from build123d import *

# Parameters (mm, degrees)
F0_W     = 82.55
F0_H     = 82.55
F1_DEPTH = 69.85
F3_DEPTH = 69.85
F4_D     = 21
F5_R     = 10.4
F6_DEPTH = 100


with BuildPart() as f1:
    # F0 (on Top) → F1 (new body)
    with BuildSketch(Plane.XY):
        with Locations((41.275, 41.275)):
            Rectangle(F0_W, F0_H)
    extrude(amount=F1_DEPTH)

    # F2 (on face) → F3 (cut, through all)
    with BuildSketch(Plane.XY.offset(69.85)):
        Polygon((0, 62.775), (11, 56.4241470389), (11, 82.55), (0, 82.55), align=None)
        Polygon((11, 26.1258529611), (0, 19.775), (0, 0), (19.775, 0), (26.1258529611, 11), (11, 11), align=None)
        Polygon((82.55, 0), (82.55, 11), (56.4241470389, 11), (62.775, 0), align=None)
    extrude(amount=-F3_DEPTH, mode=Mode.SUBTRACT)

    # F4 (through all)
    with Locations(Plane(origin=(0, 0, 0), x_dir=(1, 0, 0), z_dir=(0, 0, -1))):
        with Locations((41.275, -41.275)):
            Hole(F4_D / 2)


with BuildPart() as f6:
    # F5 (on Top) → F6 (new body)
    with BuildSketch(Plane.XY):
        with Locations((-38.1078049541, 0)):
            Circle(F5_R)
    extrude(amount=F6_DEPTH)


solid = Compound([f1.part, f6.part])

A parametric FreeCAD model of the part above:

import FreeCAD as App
import Part
import Sketcher
Q = App.Units.Quantity

doc = App.newDocument("Part")
body = doc.addObject("PartDesign::Body", "Body")

# Sketch on XY plane
sketch1 = body.newObject("Sketcher::SketchObject", "Sketch")
sketch1.AttachmentSupport = (doc.getObject("XY_Plane"), [""])
sketch1.MapMode = "FlatFace"
sketch1.addGeometry(Part.LineSegment(App.Vector(0, 83, 0), App.Vector(0, 0, 0)), False)
sketch1.addGeometry(Part.LineSegment(App.Vector(0, 0, 0), App.Vector(83, 0, 0)), False)
sketch1.addGeometry(Part.LineSegment(App.Vector(83, 0, 0), App.Vector(83, 83, 0)), False)
sketch1.addGeometry(Part.LineSegment(App.Vector(83, 83, 0), App.Vector(0, 83, 0)), False)
sketch1.addConstraint(Sketcher.Constraint("Coincident", 0, 2, 1, 1))
sketch1.addConstraint(Sketcher.Constraint("Coincident", 1, 2, 2, 1))
sketch1.addConstraint(Sketcher.Constraint("Coincident", 2, 2, 3, 1))
sketch1.addConstraint(Sketcher.Constraint("Coincident", 3, 2, 0, 1))
sketch1.addConstraint(Sketcher.Constraint("Vertical", 0))
sketch1.addConstraint(Sketcher.Constraint("Horizontal", 1))
sketch1.addConstraint(Sketcher.Constraint("Vertical", 2))
sketch1.addConstraint(Sketcher.Constraint("Horizontal", 3))
sketch1.addConstraint(Sketcher.Constraint("Coincident", 0, 2, -1, 1))
sketch1.addConstraint(Sketcher.Constraint("Equal", 3, 0))
sketch1.addConstraint(Sketcher.Constraint("DistanceX", 1, 1, 1, 2, 82.55))
pad1 = body.newObject("PartDesign::Pad", "Pad")
pad1.Profile = sketch1
pad1.Length = 69.85

# Sketch on XY plane
sketch2 = body.newObject("Sketcher::SketchObject", "Sketch001")
sketch2.AttachmentSupport = (doc.getObject("XY_Plane"), [""])
sketch2.MapMode = "FlatFace"
sketch2.AttachmentOffset = App.Placement(App.Vector(0, 0, 69.85), App.Rotation())
sketch2.addGeometry(Part.LineSegment(App.Vector(0, 63, 0), App.Vector(11, 56, 0)), False)
sketch2.addGeometry(Part.LineSegment(App.Vector(11, 56, 0), App.Vector(11, 83, 0)), False)
sketch2.addGeometry(Part.LineSegment(App.Vector(11, 83, 0), App.Vector(0, 83, 0)), False)
sketch2.addGeometry(Part.LineSegment(App.Vector(0, 83, 0), App.Vector(0, 63, 0)), False)
sketch2.addGeometry(Part.LineSegment(App.Vector(11, 26, 0), App.Vector(0, 20, 0)), False)
sketch2.addGeometry(Part.LineSegment(App.Vector(0, 20, 0), App.Vector(0, 0, 0)), False)
sketch2.addGeometry(Part.LineSegment(App.Vector(0, 0, 0), App.Vector(20, 0, 0)), False)
sketch2.addGeometry(Part.LineSegment(App.Vector(20, 0, 0), App.Vector(26, 11, 0)), False)
sketch2.addGeometry(Part.LineSegment(App.Vector(26, 11, 0), App.Vector(11, 11, 0)), False)
sketch2.addGeometry(Part.LineSegment(App.Vector(11, 11, 0), App.Vector(11, 26, 0)), False)
sketch2.addGeometry(Part.LineSegment(App.Vector(83, 0, 0), App.Vector(83, 11, 0)), False)
sketch2.addGeometry(Part.LineSegment(App.Vector(83, 11, 0), App.Vector(56, 11, 0)), False)
sketch2.addGeometry(Part.LineSegment(App.Vector(56, 11, 0), App.Vector(63, 0, 0)), False)
sketch2.addGeometry(Part.LineSegment(App.Vector(63, 0, 0), App.Vector(83, 0, 0)), False)
sketch2.addConstraint(Sketcher.Constraint("Coincident", 0, 2, 1, 1))
sketch2.addConstraint(Sketcher.Constraint("Coincident", 1, 2, 2, 1))
sketch2.addConstraint(Sketcher.Constraint("Coincident", 2, 2, 3, 1))
sketch2.addConstraint(Sketcher.Constraint("Coincident", 3, 2, 0, 1))
sketch2.addConstraint(Sketcher.Constraint("Coincident", 4, 2, 5, 1))
sketch2.addConstraint(Sketcher.Constraint("Coincident", 5, 2, 6, 1))
sketch2.addConstraint(Sketcher.Constraint("Coincident", 6, 2, 7, 1))
sketch2.addConstraint(Sketcher.Constraint("Coincident", 7, 2, 8, 1))
sketch2.addConstraint(Sketcher.Constraint("Coincident", 8, 2, 9, 1))
sketch2.addConstraint(Sketcher.Constraint("Coincident", 9, 2, 4, 1))
sketch2.addConstraint(Sketcher.Constraint("Coincident", 10, 2, 11, 1))
sketch2.addConstraint(Sketcher.Constraint("Coincident", 11, 2, 12, 1))
sketch2.addConstraint(Sketcher.Constraint("Coincident", 12, 2, 13, 1))
sketch2.addConstraint(Sketcher.Constraint("Coincident", 13, 2, 10, 1))
sketch2.addConstraint(Sketcher.Constraint("Vertical", 1))
sketch2.addConstraint(Sketcher.Constraint("Horizontal", 2))
sketch2.addConstraint(Sketcher.Constraint("Vertical", 3))
sketch2.addConstraint(Sketcher.Constraint("Vertical", 5))
sketch2.addConstraint(Sketcher.Constraint("Horizontal", 6))
sketch2.addConstraint(Sketcher.Constraint("Horizontal", 8))
sketch2.addConstraint(Sketcher.Constraint("Vertical", 9))
sketch2.addConstraint(Sketcher.Constraint("Vertical", 10))
sketch2.addConstraint(Sketcher.Constraint("Horizontal", 11))
sketch2.addConstraint(Sketcher.Constraint("Horizontal", 13))
sketch2.addConstraint(Sketcher.Constraint("Coincident", 5, 2, -1, 1))
sketch2.addConstraint(Sketcher.Constraint("PointOnObject", 2, 2, -2))
sketch2.addConstraint(Sketcher.Constraint("PointOnObject", 12, 2, -1))
sketch2.addConstraint(Sketcher.Constraint("Perpendicular", 0, 7))
sketch2.addConstraint(Sketcher.Constraint("Perpendicular", 4, 12))
sketch2.addConstraint(Sketcher.Constraint("Horizontal", 8, 2, 10, 2))
sketch2.addConstraint(Sketcher.Constraint("Vertical", 1, 2, 8, 2))
sketch2.addConstraint(Sketcher.Constraint("Equal", 6, 13))
sketch2.addConstraint(Sketcher.Constraint("Equal", 11, 1))
sketch2.addConstraint(Sketcher.Constraint("Equal", 13, 3))
sketch2.addConstraint(Sketcher.Constraint("Equal", 3, 5))
sketch2.addConstraint(Sketcher.Constraint("Equal", 8, 9))
sketch2.addConstraint(Sketcher.Constraint("DistanceX", 2, 2, 2, 1, 11.0))
sketch2.addConstraint(Sketcher.Constraint("Angle", 0, Q("-30 deg")))
sketch2.addConstraint(Sketcher.Constraint("DistanceY", 4, 2, 3, 2, 43.0))
sketch2.addConstraint(Sketcher.Constraint("DistanceX", 6, 2, 12, 2, 43.0))
sketch2.addConstraint(Sketcher.Constraint("DistanceX", 6, 1, 6, 2, 19.775))
pocket1 = body.newObject("PartDesign::Pocket", "Pocket")
pocket1.Profile = sketch2
pocket1.Type = "ThroughAll"

# Sketch on XY plane
sketch3 = body.newObject("Sketcher::SketchObject", "Sketch002")
sketch3.AttachmentSupport = (doc.getObject("XY_Plane"), [""])
sketch3.MapMode = "FlatFace"
sketch3.addGeometry(Part.Circle(App.Vector(41, 41, 0), App.Vector(0, 0, 1), 10), False)
sketch3.addConstraint(Sketcher.Constraint("Diameter", 0, 21.0))
sketch3.addConstraint(Sketcher.Constraint("DistanceX", -1, 1, 0, 3, 41.275))
sketch3.addConstraint(Sketcher.Constraint("DistanceY", -1, 1, 0, 3, 41.275))
doc.recompute()
hole = body.newObject("PartDesign::Hole", "Hole")
hole.Profile = sketch3
hole.ThreadType = "None"
hole.Diameter = 21
hole.DepthType = "ThroughAll"
hole.Reversed = True
body2 = doc.addObject("PartDesign::Body", "Body001")

# Sketch on XY plane
sketch4 = body2.newObject("Sketcher::SketchObject", "Sketch003")
sketch4.AttachmentSupport = (doc.getObject("XY_Plane001"), [""])
sketch4.MapMode = "FlatFace"
sketch4.addGeometry(Part.Circle(App.Vector(-38, 0, 0), App.Vector(0, 0, 1), 10), False)
sketch4.addConstraint(Sketcher.Constraint("PointOnObject", 0, 3, -1))
sketch4.addConstraint(Sketcher.Constraint("Diameter", 0, 20.8))
sketch4.addConstraint(Sketcher.Constraint("DistanceX", 0, 3, -1, 1, 38.107805))
pad2 = body2.newObject("PartDesign::Pad", "Pad001")
pad2.Profile = sketch4
pad2.Length = 100

doc.recompute()
